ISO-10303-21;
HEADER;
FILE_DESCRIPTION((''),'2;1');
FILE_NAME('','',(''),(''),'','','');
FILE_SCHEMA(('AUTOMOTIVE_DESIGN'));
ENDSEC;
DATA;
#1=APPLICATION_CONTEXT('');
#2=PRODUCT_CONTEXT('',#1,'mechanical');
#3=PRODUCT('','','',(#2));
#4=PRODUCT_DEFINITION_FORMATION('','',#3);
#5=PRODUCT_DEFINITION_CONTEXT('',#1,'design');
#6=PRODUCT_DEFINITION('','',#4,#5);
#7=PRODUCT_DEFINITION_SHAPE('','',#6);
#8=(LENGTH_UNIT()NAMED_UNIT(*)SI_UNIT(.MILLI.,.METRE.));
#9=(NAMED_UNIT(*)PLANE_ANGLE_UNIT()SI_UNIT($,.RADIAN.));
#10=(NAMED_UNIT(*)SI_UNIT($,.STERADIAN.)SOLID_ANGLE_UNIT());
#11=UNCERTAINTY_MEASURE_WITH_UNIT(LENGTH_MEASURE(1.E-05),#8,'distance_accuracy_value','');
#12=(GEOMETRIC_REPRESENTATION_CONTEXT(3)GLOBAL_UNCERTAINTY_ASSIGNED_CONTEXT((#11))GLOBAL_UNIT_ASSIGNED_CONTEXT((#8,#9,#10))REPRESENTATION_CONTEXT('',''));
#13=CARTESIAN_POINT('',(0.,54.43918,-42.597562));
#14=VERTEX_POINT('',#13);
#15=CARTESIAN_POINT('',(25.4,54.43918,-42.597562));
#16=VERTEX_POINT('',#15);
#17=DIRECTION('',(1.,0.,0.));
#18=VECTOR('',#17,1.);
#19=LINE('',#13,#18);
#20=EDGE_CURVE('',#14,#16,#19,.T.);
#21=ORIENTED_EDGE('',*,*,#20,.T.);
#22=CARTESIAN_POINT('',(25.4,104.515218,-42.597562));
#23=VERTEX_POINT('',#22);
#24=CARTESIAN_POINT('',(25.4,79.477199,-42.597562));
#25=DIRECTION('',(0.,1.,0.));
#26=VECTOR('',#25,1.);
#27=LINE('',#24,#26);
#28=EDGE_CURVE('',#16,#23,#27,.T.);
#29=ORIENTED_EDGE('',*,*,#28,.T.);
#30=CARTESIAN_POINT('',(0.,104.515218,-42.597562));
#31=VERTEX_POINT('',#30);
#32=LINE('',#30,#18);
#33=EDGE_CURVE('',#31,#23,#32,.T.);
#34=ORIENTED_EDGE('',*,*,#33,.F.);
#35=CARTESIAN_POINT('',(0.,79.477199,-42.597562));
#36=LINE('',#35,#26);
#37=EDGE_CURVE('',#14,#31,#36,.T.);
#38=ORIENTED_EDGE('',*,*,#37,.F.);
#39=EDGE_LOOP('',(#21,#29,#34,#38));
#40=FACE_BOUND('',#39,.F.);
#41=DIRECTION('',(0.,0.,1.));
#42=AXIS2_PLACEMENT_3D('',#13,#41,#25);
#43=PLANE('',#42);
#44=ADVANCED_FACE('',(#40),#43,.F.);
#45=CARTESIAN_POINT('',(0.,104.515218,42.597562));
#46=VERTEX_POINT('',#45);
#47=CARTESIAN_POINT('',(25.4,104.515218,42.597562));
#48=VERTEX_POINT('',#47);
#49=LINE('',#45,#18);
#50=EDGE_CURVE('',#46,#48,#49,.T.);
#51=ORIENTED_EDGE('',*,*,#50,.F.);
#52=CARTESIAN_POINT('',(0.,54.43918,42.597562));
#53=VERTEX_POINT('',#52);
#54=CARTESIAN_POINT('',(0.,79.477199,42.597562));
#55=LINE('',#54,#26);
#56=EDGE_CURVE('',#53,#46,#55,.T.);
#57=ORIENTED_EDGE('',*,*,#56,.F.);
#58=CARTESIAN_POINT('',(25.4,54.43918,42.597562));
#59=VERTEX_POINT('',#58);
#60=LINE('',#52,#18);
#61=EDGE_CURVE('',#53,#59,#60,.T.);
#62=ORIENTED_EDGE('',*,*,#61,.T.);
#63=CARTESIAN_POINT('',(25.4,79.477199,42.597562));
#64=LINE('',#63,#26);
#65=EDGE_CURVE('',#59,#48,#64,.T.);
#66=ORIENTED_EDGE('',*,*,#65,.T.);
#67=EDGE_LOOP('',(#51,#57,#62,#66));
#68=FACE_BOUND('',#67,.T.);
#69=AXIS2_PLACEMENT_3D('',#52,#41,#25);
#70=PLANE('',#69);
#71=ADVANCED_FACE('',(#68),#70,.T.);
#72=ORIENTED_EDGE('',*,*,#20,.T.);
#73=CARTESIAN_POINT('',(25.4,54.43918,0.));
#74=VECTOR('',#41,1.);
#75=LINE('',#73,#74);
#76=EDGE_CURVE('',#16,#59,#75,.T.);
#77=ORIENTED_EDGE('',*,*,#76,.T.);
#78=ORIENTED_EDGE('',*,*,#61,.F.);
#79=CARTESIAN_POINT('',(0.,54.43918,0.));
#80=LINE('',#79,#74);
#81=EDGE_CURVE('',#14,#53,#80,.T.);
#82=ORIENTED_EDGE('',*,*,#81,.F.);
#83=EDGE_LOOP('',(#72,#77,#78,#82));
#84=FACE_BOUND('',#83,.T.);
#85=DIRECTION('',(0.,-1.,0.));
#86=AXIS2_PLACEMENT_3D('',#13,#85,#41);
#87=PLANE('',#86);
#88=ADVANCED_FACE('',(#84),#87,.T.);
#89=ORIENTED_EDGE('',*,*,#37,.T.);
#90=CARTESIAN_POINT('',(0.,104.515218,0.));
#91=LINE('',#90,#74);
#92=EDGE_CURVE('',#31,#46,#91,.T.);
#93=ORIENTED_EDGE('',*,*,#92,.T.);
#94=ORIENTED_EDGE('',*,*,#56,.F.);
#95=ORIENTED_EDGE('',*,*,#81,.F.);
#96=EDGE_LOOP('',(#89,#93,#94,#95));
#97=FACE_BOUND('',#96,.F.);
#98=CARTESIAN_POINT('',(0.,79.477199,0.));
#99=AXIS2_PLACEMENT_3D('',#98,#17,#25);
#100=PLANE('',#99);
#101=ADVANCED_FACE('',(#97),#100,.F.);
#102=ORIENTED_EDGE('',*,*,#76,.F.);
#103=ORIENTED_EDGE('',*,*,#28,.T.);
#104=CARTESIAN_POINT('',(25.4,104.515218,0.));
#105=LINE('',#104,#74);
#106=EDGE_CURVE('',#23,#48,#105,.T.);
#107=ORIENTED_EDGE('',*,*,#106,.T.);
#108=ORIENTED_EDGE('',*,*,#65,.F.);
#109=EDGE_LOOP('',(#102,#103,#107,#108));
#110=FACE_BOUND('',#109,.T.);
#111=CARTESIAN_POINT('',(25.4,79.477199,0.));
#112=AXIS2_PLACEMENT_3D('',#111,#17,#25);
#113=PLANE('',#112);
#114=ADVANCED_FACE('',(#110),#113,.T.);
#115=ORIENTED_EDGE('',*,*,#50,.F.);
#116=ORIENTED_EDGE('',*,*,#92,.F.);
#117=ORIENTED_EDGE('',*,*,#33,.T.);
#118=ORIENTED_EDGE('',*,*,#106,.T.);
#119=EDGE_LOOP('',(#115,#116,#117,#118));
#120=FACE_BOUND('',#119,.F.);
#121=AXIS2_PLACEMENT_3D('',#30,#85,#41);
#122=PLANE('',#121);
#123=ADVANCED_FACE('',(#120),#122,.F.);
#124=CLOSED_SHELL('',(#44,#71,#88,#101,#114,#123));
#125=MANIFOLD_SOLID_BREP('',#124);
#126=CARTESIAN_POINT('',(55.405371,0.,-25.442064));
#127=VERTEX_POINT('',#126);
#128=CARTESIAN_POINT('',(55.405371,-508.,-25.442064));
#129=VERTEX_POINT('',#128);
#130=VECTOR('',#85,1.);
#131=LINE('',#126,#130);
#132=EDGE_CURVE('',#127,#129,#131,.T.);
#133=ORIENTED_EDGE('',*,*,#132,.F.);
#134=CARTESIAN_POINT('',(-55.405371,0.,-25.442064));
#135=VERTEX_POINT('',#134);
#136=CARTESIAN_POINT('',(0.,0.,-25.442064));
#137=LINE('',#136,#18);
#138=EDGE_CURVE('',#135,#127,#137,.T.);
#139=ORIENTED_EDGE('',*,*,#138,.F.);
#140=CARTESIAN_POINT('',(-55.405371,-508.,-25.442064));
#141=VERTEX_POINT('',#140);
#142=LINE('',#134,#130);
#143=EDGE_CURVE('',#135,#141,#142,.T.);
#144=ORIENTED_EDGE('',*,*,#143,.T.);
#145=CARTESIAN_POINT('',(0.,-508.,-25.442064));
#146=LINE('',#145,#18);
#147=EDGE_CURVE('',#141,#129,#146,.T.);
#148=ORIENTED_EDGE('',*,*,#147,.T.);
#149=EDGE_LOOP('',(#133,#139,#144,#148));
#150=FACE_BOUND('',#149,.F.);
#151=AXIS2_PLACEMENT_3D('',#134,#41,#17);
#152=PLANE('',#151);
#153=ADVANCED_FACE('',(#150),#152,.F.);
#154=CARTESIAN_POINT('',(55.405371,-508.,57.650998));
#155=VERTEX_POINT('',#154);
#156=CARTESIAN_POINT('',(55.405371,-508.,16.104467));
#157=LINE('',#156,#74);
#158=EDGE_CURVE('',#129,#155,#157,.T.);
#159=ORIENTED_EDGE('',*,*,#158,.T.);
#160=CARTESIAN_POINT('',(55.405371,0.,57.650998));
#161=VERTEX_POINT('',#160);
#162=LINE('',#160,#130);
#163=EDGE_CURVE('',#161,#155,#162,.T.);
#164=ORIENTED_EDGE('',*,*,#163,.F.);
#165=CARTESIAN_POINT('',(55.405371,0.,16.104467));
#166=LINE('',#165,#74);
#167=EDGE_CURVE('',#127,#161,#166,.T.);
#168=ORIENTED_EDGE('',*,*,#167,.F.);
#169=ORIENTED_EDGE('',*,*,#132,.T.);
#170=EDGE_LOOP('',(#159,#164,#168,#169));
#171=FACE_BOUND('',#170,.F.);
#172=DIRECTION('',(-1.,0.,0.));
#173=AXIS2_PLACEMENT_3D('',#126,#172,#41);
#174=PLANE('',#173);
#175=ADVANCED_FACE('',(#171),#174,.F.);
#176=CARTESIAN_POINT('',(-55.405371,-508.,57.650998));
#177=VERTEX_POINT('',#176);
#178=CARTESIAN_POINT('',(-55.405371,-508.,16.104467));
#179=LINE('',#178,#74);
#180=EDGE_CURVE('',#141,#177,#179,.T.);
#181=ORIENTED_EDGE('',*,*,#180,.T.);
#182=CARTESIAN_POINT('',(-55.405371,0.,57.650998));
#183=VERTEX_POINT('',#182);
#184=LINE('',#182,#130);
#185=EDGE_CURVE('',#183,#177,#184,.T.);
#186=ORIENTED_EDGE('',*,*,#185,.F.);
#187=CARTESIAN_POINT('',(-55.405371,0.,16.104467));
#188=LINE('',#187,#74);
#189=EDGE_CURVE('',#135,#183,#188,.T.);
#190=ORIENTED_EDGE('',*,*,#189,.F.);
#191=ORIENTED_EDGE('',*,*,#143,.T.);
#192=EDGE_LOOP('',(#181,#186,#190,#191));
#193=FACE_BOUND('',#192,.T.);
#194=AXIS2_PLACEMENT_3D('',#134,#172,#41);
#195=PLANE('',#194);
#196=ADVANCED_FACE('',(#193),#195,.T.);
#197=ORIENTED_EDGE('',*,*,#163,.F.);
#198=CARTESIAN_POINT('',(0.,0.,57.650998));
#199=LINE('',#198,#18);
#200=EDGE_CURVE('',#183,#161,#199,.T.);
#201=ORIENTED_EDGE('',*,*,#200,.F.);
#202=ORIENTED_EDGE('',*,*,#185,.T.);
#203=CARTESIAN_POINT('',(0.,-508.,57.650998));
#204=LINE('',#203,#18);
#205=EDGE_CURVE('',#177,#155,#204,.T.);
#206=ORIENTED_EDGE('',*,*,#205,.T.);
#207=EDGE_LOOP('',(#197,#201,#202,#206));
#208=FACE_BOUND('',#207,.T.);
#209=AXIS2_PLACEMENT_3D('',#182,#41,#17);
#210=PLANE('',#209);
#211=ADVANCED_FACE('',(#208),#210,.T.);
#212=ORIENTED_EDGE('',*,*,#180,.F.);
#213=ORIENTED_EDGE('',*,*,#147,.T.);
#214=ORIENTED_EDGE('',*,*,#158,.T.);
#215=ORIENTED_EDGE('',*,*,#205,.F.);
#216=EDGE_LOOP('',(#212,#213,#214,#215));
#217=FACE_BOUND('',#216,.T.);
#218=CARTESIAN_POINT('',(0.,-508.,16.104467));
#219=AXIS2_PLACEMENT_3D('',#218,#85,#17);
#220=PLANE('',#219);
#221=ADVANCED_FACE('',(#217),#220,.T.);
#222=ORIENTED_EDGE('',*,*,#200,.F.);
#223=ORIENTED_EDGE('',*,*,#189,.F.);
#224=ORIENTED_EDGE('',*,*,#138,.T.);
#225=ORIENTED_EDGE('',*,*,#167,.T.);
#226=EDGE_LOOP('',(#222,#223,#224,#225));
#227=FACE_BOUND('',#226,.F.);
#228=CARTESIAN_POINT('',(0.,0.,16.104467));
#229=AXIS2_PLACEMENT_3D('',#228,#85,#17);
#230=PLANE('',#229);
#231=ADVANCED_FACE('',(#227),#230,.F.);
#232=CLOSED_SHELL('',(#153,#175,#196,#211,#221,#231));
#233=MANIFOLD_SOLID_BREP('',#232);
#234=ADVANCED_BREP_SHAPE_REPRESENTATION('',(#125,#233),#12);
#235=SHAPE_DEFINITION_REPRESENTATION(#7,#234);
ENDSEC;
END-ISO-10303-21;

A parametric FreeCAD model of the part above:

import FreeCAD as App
import Part
import Sketcher

V = App.Vector
Q = App.Units.Quantity


def add_polygon(sketch, points):
    """Adds a closed chain of lines whose ends are joined by coincident constraints."""
    first, n = sketch.GeometryCount, len(points)
    for a, b in zip(points, points[1:] + points[:1]):
        sketch.addGeometry(Part.LineSegment(App.Vector(*a, 0), App.Vector(*b, 0)), False)
    for i in range(n):
        sketch.addConstraint(Sketcher.Constraint("Coincident", first + i, 2, first + (i + 1) % n, 1))

doc = App.newDocument("Part")
body = doc.addObject("PartDesign::Body", "Body")

sketch1 = body.newObject("Sketcher::SketchObject", "Sketch")
sketch1.AttachmentSupport = (doc.getObject("XZ_Plane"), [""])
sketch1.MapMode = "FlatFace"
add_polygon(sketch1, [(-55.405371, 57.650998), (-55.405371, -25.442064), (55.405371, -25.442064), (55.405371, 57.650998)])
sketch1.addConstraint(Sketcher.Constraint("Vertical", 0))
sketch1.addConstraint(Sketcher.Constraint("Horizontal", 1))
sketch1.addConstraint(Sketcher.Constraint("Vertical", 2))
sketch1.addConstraint(Sketcher.Constraint("Horizontal", 3))
sketch1.addConstraint(Sketcher.Constraint("DistanceX", 1, 1, 1, 2, Q("110.810742 mm")))
sketch1.addConstraint(Sketcher.Constraint("DistanceY", 0, 2, 0, 1, Q("83.093062 mm")))
sketch1.addConstraint(Sketcher.Constraint("DistanceX", 0, 2, -1, 1, Q("55.405371 mm")))
sketch1.addConstraint(Sketcher.Constraint("DistanceY", 0, 2, -1, 1, Q("25.442064 mm")))
pad1 = body.newObject("PartDesign::Pad", "Pad")
pad1.Profile = sketch1
pad1.Length = Q("20 in")
body2 = doc.addObject("PartDesign::Body", "Body001")

sketch2 = body2.newObject("Sketcher::SketchObject", "Sketch001")
sketch2.AttachmentSupport = (doc.getObject("YZ_Plane001"), [""])
sketch2.MapMode = "FlatFace"
add_polygon(sketch2, [(54.43918, 42.597562), (54.43918, -42.597562), (104.515218, -42.597562), (104.515218, 42.597562)])
sketch2.addConstraint(Sketcher.Constraint("Vertical", 0))
sketch2.addConstraint(Sketcher.Constraint("Horizontal", 1))
sketch2.addConstraint(Sketcher.Constraint("Vertical", 2))
sketch2.addConstraint(Sketcher.Constraint("Horizontal", 3))
sketch2.addConstraint(Sketcher.Constraint("DistanceX", 1, 1, 1, 2, Q("50.076037 mm")))
sketch2.addConstraint(Sketcher.Constraint("DistanceY", 0, 2, 0, 1, Q("85.195124 mm")))
sketch2.addConstraint(Sketcher.Constraint("DistanceX", -1, 1, 0, 2, Q("54.43918 mm")))
sketch2.addConstraint(Sketcher.Constraint("DistanceY", 0, 2, -1, 1, Q("42.597562 mm")))
pad2 = body2.newObject("PartDesign::Pad", "Pad001")
pad2.Profile = sketch2
pad2.Length = Q("1 in")

doc.recompute()
